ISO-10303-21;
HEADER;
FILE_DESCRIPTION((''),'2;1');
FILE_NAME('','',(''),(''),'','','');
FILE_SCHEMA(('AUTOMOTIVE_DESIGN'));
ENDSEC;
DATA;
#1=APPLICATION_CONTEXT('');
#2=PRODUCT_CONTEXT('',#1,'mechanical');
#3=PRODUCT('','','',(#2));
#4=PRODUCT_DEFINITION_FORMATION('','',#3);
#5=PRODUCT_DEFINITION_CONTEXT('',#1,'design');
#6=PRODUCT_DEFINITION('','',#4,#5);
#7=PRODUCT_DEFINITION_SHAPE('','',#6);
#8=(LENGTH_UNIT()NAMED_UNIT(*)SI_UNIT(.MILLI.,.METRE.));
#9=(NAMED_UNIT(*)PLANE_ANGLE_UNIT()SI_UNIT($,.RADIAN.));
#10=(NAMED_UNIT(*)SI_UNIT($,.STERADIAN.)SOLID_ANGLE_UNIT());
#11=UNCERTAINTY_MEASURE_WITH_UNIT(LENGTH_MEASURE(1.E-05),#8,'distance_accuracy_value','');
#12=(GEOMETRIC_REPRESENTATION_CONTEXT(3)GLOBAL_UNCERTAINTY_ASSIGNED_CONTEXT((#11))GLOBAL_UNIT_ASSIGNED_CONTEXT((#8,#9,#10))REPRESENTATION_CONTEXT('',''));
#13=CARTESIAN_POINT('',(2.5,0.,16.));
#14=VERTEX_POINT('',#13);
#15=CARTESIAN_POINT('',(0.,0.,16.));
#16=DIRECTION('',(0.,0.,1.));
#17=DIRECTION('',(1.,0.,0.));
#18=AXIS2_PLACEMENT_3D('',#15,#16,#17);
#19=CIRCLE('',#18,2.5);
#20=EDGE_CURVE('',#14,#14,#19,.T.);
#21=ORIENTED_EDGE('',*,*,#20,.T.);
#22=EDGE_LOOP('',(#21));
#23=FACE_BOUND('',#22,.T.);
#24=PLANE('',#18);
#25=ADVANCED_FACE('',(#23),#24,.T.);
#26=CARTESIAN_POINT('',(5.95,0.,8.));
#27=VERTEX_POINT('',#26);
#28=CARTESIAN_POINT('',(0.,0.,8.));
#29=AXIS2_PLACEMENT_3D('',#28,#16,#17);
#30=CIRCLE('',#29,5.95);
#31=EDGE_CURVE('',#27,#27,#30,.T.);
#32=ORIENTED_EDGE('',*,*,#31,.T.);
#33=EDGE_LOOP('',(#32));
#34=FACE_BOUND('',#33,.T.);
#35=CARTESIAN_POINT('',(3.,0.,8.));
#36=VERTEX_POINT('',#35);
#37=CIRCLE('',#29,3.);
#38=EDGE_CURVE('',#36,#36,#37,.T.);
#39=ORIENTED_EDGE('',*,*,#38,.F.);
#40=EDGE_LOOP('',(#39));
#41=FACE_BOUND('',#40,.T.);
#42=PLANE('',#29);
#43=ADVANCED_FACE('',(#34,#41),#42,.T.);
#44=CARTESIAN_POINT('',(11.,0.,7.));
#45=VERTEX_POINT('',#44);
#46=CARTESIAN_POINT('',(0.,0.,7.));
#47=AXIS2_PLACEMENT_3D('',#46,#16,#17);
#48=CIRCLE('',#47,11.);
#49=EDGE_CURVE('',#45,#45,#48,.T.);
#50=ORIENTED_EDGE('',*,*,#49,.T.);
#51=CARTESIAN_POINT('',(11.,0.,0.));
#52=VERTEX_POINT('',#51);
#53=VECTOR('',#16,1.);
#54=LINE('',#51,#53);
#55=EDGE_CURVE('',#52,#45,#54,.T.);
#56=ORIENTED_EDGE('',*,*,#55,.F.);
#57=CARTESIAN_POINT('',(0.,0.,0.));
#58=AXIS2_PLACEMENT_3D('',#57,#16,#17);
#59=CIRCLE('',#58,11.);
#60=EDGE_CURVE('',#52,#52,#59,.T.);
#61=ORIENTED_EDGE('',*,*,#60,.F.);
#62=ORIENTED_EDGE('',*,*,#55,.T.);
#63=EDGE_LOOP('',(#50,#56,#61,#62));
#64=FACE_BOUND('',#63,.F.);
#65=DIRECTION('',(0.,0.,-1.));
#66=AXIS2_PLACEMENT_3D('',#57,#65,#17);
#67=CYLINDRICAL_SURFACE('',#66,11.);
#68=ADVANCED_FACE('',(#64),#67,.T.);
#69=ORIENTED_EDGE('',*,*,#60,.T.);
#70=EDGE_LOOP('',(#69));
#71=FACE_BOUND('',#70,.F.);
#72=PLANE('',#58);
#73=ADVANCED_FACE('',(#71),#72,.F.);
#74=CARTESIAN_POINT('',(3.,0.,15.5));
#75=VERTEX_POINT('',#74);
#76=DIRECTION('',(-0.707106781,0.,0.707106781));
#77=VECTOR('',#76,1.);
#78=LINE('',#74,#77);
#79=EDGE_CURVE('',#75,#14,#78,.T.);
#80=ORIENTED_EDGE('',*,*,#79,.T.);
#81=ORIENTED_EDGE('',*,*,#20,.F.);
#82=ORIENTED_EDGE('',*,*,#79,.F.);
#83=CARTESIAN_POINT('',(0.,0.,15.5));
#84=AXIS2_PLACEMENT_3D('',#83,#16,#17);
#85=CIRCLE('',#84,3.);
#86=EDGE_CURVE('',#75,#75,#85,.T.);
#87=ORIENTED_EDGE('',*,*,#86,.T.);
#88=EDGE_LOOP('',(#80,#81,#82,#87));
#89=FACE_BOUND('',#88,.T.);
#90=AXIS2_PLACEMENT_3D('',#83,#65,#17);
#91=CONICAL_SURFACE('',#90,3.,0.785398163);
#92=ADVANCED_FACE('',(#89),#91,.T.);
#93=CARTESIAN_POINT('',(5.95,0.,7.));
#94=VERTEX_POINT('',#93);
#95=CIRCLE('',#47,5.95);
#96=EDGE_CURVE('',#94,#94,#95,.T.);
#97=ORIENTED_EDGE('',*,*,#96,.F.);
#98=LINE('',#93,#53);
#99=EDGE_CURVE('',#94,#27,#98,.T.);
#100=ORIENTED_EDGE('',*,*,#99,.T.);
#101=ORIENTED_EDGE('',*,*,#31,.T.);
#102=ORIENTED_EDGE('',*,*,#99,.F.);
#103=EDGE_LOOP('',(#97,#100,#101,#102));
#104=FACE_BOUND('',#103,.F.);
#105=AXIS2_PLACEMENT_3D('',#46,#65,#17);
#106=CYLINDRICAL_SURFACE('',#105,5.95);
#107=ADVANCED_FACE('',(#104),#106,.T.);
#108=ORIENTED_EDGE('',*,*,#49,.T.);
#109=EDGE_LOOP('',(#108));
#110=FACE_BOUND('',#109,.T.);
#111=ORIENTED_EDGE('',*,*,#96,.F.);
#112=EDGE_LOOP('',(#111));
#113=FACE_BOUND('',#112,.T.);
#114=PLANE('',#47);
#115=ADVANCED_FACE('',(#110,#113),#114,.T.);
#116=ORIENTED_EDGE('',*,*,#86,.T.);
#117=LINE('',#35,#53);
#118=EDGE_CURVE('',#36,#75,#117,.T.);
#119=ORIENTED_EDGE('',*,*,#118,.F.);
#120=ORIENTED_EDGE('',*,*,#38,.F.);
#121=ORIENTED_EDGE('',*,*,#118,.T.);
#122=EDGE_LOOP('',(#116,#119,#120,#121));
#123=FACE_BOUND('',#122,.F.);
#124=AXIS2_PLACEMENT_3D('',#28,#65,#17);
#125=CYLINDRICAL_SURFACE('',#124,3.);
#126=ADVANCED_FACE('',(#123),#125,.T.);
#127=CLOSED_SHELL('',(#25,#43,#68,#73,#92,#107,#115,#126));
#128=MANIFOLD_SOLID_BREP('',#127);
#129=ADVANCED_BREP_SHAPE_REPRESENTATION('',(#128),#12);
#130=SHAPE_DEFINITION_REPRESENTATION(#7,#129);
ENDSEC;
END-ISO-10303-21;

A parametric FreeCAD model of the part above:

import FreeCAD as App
import Part
import Sketcher


def edges_at(feature, points):
    """Names of the edges that pass closest to the given points."""
    edges = feature.Shape.Edges
    near = lambda p: min(range(len(edges)), key=lambda i: edges[i].distToShape(Part.Vertex(*p))[0])
    return sorted({f"Edge{near(p) + 1}" for p in points})

doc = App.newDocument("Part")
body = doc.addObject("PartDesign::Body", "Body")

# Sketch on XY plane
sketch1 = body.newObject("Sketcher::SketchObject", "Sketch")
sketch1.AttachmentSupport = (doc.getObject("XY_Plane"), [""])
sketch1.MapMode = "FlatFace"
sketch1.addGeometry(Part.Circle(App.Vector(0, 0, 0), App.Vector(0, 0, 1), 11), False)
sketch1.addConstraint([
    Sketcher.Constraint("Coincident", 0, 3, -1, 1),
    Sketcher.Constraint("Diameter", 0, 22.0),
])
pad1 = body.newObject("PartDesign::Pad", "Pad")
pad1.Profile = sketch1
pad1.Length = 7

# Sketch on XY plane
sketch2 = body.newObject("Sketcher::SketchObject", "Sketch001")
sketch2.AttachmentSupport = (doc.getObject("XY_Plane"), [""])
sketch2.MapMode = "FlatFace"
sketch2.AttachmentOffset = App.Placement(App.Vector(0, 0, 7), App.Rotation())
sketch2.addGeometry(Part.Circle(App.Vector(0, 0, 0), App.Vector(0, 0, 1), 6), False)
sketch2.addConstraint([
    Sketcher.Constraint("Coincident", 0, 3, -1, 1),
    Sketcher.Constraint("Diameter", 0, 11.9),
])
pad2 = body.newObject("PartDesign::Pad", "Pad001")
pad2.Profile = sketch2
pad2.Length = 1

# Sketch on XY plane
sketch3 = body.newObject("Sketcher::SketchObject", "Sketch002")
sketch3.AttachmentSupport = (doc.getObject("XY_Plane"), [""])
sketch3.MapMode = "FlatFace"
sketch3.AttachmentOffset = App.Placement(App.Vector(0, 0, 8), App.Rotation())
sketch3.addGeometry(Part.Circle(App.Vector(0, 0, 0), App.Vector(0, 0, 1), 3), False)
sketch3.addConstraint([
    Sketcher.Constraint("Coincident", 0, 3, -1, 1),
    Sketcher.Constraint("Diameter", 0, 6.0),
])
pad3 = body.newObject("PartDesign::Pad", "Pad002")
pad3.Profile = sketch3
pad3.Length = 8
doc.recompute()

chamfer = body.newObject("PartDesign::Chamfer", "Chamfer")
chamfer.Base = (pad3, edges_at(pad3, [(-3, 0, 16)]))
chamfer.Size = 0.5

doc.recompute()
